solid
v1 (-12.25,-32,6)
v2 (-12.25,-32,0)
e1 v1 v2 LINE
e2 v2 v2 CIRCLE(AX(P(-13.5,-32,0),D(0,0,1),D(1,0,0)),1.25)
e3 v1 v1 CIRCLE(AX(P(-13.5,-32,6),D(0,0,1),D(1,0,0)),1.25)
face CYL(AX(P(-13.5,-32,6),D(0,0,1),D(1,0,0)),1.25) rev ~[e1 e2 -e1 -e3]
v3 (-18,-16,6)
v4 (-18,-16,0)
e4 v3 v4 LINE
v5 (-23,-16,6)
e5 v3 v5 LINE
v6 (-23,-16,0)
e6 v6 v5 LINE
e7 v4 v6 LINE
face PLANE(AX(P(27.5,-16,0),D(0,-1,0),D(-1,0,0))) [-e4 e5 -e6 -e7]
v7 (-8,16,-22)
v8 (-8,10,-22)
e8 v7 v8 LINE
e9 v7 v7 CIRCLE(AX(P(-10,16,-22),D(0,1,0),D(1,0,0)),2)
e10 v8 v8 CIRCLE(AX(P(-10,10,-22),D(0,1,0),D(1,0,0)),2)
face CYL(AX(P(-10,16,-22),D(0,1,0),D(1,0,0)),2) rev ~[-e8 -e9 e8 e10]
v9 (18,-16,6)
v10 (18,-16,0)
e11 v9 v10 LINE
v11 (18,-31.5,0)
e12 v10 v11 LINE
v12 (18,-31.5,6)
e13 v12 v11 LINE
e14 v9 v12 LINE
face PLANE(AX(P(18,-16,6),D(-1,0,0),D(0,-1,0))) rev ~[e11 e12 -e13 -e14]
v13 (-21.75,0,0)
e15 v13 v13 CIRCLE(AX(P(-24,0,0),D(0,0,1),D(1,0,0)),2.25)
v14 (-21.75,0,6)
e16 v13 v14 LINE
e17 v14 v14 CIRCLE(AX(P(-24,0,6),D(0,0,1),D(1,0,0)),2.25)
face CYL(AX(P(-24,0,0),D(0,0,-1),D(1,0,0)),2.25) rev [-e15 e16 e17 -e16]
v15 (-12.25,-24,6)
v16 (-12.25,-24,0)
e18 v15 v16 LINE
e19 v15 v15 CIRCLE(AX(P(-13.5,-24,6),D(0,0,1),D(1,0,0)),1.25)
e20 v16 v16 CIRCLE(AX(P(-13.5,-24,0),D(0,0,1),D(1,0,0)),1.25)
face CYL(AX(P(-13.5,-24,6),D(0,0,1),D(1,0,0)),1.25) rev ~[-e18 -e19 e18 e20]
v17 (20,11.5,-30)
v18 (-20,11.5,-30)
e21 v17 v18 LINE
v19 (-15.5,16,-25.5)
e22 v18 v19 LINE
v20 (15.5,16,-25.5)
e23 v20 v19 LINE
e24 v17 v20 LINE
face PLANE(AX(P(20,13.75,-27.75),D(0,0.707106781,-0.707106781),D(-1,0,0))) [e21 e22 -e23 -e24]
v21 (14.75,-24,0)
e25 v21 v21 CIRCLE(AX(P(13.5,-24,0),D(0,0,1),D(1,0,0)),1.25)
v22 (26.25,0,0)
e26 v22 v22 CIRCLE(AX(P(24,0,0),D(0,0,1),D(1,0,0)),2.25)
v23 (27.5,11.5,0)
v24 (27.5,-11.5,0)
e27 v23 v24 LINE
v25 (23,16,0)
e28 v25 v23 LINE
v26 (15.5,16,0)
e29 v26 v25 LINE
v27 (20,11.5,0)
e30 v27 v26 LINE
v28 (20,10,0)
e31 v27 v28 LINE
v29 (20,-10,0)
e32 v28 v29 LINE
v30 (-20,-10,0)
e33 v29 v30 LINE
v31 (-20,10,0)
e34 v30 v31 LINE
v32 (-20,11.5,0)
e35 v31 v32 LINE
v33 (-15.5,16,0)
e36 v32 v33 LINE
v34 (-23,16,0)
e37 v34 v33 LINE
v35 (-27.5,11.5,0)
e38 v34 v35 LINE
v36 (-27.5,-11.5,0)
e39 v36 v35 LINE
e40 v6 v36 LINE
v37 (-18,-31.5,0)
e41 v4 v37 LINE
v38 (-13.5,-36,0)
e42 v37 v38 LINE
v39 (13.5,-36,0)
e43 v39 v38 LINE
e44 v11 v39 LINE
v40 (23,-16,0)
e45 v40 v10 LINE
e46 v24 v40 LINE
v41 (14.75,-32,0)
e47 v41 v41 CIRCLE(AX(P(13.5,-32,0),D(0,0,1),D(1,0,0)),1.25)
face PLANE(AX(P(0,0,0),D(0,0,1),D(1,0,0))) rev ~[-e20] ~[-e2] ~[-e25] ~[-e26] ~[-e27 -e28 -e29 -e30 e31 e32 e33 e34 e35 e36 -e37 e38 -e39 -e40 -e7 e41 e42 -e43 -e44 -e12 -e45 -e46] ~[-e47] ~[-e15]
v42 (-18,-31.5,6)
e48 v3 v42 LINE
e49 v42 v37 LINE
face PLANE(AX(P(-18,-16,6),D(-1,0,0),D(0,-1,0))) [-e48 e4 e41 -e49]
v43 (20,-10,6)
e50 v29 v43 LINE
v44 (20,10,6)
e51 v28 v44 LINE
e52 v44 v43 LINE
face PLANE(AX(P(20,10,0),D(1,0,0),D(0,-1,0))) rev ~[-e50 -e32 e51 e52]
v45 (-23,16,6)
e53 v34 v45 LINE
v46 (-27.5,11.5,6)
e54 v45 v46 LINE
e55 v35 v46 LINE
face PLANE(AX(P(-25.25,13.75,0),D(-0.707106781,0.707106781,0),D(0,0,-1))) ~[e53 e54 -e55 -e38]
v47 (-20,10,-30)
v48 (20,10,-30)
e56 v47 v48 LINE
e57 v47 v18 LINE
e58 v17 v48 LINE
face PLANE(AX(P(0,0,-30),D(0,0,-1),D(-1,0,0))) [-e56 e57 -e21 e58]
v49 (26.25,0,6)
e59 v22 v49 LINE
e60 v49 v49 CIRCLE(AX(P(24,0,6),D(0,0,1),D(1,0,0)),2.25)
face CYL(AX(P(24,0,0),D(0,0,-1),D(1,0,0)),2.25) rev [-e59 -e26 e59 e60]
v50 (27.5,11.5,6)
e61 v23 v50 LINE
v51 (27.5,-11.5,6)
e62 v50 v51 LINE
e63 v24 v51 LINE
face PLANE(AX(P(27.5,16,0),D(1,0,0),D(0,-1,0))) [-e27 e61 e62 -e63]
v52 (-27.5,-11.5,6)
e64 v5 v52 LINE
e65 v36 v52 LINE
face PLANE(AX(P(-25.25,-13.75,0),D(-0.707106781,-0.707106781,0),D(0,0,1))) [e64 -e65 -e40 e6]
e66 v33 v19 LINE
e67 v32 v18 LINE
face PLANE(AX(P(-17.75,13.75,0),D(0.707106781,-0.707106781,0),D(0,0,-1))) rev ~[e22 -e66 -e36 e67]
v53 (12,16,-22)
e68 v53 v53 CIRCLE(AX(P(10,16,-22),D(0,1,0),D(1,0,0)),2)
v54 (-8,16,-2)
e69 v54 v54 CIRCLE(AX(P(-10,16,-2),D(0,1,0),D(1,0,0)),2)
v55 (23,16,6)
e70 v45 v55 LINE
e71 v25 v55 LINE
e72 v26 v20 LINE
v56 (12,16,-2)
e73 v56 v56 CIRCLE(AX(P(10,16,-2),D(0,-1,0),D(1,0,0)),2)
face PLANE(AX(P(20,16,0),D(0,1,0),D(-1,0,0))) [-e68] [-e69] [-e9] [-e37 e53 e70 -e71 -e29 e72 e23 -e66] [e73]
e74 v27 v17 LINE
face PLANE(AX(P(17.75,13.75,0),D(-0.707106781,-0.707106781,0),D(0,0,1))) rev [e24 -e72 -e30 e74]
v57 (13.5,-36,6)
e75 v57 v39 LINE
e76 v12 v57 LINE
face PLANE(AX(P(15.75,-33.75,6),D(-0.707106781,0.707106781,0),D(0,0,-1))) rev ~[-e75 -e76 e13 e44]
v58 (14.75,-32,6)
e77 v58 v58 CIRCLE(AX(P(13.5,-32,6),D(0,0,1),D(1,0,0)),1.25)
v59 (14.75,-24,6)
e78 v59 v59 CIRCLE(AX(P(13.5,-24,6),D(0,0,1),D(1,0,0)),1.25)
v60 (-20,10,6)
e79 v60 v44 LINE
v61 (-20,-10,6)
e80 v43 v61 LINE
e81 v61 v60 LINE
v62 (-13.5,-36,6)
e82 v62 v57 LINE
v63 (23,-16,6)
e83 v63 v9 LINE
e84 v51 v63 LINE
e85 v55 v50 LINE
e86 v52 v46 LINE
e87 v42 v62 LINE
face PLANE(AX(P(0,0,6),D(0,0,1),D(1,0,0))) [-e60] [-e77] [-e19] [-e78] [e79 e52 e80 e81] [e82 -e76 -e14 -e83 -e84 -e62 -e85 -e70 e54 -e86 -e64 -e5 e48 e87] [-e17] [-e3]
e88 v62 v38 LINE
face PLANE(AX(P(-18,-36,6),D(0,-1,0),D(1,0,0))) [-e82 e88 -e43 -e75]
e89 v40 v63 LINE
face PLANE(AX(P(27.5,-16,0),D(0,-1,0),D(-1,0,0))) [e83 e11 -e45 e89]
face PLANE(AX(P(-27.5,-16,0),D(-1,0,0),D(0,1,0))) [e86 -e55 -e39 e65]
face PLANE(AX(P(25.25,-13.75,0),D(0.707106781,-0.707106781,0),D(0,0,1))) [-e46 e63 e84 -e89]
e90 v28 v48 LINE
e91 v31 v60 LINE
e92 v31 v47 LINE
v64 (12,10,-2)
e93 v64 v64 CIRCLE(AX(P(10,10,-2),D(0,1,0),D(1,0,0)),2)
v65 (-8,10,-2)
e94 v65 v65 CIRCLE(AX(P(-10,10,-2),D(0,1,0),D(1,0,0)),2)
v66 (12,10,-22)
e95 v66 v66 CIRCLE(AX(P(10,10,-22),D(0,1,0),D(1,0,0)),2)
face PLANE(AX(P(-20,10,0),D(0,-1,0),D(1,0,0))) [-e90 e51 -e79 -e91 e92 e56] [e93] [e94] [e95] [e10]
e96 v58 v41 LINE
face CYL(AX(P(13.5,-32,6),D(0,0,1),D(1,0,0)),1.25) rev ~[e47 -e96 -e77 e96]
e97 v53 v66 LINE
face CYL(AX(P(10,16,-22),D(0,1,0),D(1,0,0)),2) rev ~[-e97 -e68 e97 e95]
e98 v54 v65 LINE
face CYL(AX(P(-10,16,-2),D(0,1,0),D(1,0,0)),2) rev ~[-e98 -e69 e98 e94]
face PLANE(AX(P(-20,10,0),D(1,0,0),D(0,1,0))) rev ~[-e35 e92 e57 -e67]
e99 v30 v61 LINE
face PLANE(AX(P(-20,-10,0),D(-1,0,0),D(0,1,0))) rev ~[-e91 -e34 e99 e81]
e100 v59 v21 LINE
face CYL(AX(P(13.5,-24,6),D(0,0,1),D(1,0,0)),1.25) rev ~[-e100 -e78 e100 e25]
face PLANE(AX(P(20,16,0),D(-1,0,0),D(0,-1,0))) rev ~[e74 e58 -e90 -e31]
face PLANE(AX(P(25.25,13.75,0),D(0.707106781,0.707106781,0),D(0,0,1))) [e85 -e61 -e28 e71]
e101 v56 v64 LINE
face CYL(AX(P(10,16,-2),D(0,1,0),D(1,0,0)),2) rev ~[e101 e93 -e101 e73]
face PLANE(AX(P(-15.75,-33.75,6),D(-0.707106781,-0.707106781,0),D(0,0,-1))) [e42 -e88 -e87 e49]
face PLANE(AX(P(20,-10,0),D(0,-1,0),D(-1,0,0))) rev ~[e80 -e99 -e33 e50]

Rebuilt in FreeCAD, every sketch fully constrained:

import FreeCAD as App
import Part
import Sketcher

V = App.Vector


def edges_at(feature, points):
    """Names of the edges that pass closest to the given points."""
    edges = feature.Shape.Edges
    near = lambda p: min(range(len(edges)), key=lambda i: edges[i].distToShape(Part.Vertex(*p))[0])
    return sorted({f"Edge{near(p) + 1}" for p in points})

doc = App.newDocument("Part")
body = doc.addObject("PartDesign::Body", "Body")

# Sketch on XY plane
sketch1 = body.newObject("Sketcher::SketchObject", "Sketch")
sketch1.AttachmentSupport = (doc.getObject("XY_Plane"), [""])
sketch1.MapMode = "FlatFace"
sketch1.addGeometry(Part.LineSegment(V(27.5, 16, 0), V(-27.5, 16, 0)), False)
sketch1.addGeometry(Part.LineSegment(V(-27.5, 16, 0), V(-27.5, -16, 0)), False)
sketch1.addGeometry(Part.LineSegment(V(-27.5, -16, 0), V(27.5, -16, 0)), False)
sketch1.addGeometry(Part.LineSegment(V(27.5, -16, 0), V(27.5, 16, 0)), False)
sketch1.addGeometry(Part.Circle(V(-24, 0, 0), V(0, 0, 1), 2.2), False)
sketch1.addGeometry(Part.LineSegment(V(-20, -10, 0), V(-20, 10, 0)), False)
sketch1.addGeometry(Part.LineSegment(V(-20, 10, 0), V(20, 10, 0)), False)
sketch1.addGeometry(Part.LineSegment(V(20, 10, 0), V(20, -10, 0)), False)
sketch1.addGeometry(Part.LineSegment(V(20, -10, 0), V(-20, -10, 0)), False)
sketch1.addGeometry(Part.Circle(V(24, 0, 0), V(0, 0, 1), 2.2), False)
sketch1.addConstraint(Sketcher.Constraint("Coincident", 0, 2, 1, 1))
sketch1.addConstraint(Sketcher.Constraint("Coincident", 1, 2, 2, 1))
sketch1.addConstraint(Sketcher.Constraint("Coincident", 2, 2, 3, 1))
sketch1.addConstraint(Sketcher.Constraint("Coincident", 3, 2, 0, 1))
sketch1.addConstraint(Sketcher.Constraint("Coincident", 5, 2, 6, 1))
sketch1.addConstraint(Sketcher.Constraint("Coincident", 6, 2, 7, 1))
sketch1.addConstraint(Sketcher.Constraint("Coincident", 7, 2, 8, 1))
sketch1.addConstraint(Sketcher.Constraint("Coincident", 8, 2, 5, 1))
sketch1.addConstraint(Sketcher.Constraint("Horizontal", 0))
sketch1.addConstraint(Sketcher.Constraint("Vertical", 1))
sketch1.addConstraint(Sketcher.Constraint("Horizontal", 2))
sketch1.addConstraint(Sketcher.Constraint("Vertical", 3))
sketch1.addConstraint(Sketcher.Constraint("Vertical", 5))
sketch1.addConstraint(Sketcher.Constraint("Horizontal", 6))
sketch1.addConstraint(Sketcher.Constraint("Vertical", 7))
sketch1.addConstraint(Sketcher.Constraint("Horizontal", 8))
sketch1.addConstraint(Sketcher.Constraint("Equal", 4, 9))
sketch1.addConstraint(Sketcher.Constraint("Symmetric", 4, 3, 9, 3, -1, 1))
sketch1.addConstraint(Sketcher.Constraint("Symmetric", 0, 2, 2, 2, -1, 1))
sketch1.addConstraint(Sketcher.Constraint("Symmetric", 5, 2, 7, 2, -1, 1))
sketch1.addConstraint(Sketcher.Constraint("PointOnObject", 4, 3, -1))
sketch1.addConstraint(Sketcher.Constraint("Diameter", 4, 4.5))
sketch1.addConstraint(Sketcher.Constraint("DistanceX", 0, 2, 0, 1, 55.0))
sketch1.addConstraint(Sketcher.Constraint("DistanceX", 6, 1, 6, 2, 40.0))
sketch1.addConstraint(Sketcher.Constraint("DistanceY", 1, 2, 1, 1, 32.0))
sketch1.addConstraint(Sketcher.Constraint("DistanceY", 5, 1, 5, 2, 20.0))
sketch1.addConstraint(Sketcher.Constraint("DistanceX", 4, 3, -1, 1, 24.0))
pad1 = body.newObject("PartDesign::Pad", "Pad")
pad1.Profile = sketch1
pad1.Length = 6
doc.recompute()

chamfer = body.newObject("PartDesign::Chamfer", "Chamfer")
chamfer.Base = (pad1, edges_at(pad1, [
    (27.5, 16, 3),
    (27.5, -16, 3),
    (-27.5, -16, 3),
    (-27.5, 16, 3),
]))
chamfer.Size = 4.5

# Sketch on XY plane
sketch2 = body.newObject("Sketcher::SketchObject", "Sketch001")
sketch2.AttachmentSupport = (doc.getObject("XY_Plane"), [""])
sketch2.MapMode = "FlatFace"
sketch2.AttachmentOffset = App.Placement(V(0, 0, 6), App.Rotation())
sketch2.addGeometry(Part.LineSegment(V(-18, -16, 0), V(-18, -36, 0)), False)
sketch2.addGeometry(Part.LineSegment(V(-18, -36, 0), V(18, -36, 0)), False)
sketch2.addGeometry(Part.LineSegment(V(18, -36, 0), V(18, -16, 0)), False)
sketch2.addGeometry(Part.LineSegment(V(18, -16, 0), V(-18, -16, 0)), False)
sketch2.addGeometry(Part.Circle(V(-13.5, -32, 0), V(0, 0, 1), 1.2), False)
sketch2.addGeometry(Part.Circle(V(-13.5, -24, 0), V(0, 0, 1), 1.2), False)
sketch2.addGeometry(Part.Circle(V(13.5, -24, 0), V(0, 0, 1), 1.2), False)
sketch2.addGeometry(Part.Circle(V(13.5, -32, 0), V(0, 0, 1), 1.2), False)
sketch2.addConstraint(Sketcher.Constraint("Coincident", 0, 2, 1, 1))
sketch2.addConstraint(Sketcher.Constraint("Coincident", 1, 2, 2, 1))
sketch2.addConstraint(Sketcher.Constraint("Coincident", 2, 2, 3, 1))
sketch2.addConstraint(Sketcher.Constraint("Coincident", 3, 2, 0, 1))
sketch2.addConstraint(Sketcher.Constraint("Vertical", 0))
sketch2.addConstraint(Sketcher.Constraint("Horizontal", 1))
sketch2.addConstraint(Sketcher.Constraint("Vertical", 2))
sketch2.addConstraint(Sketcher.Constraint("Horizontal", 3))
sketch2.addConstraint(Sketcher.Constraint("Equal", 4, 5))
sketch2.addConstraint(Sketcher.Constraint("Equal", 5, 6))
sketch2.addConstraint(Sketcher.Constraint("Equal", 6, 7))
sketch2.addConstraint(Sketcher.Constraint("Symmetric", 5, 3, 6, 3, -2))
sketch2.addConstraint(Sketcher.Constraint("Symmetric", 4, 3, 7, 3, -2))
sketch2.addConstraint(Sketcher.Constraint("Vertical", 4, 3, 5, 3))
sketch2.addConstraint(Sketcher.Constraint("Diameter", 4, 2.5))
sketch2.addConstraint(Sketcher.Constraint("DistanceY", 0, 2, 0, 1, 20.0))
sketch2.addConstraint(Sketcher.Constraint("DistanceX", 0, 2, -1, 1, 18.0))
sketch2.addConstraint(Sketcher.Constraint("DistanceX", -1, 1, 1, 2, 18.0))
sketch2.addConstraint(Sketcher.Constraint("DistanceY", 2, 2, -1, 1, 16.0))
sketch2.addConstraint(Sketcher.Constraint("DistanceY", 4, 3, 5, 3, 8.0))
sketch2.addConstraint(Sketcher.Constraint("DistanceY", 6, 3, 2, 2, 8.0))
sketch2.addConstraint(Sketcher.Constraint("DistanceX", 4, 3, -1, 1, 13.5))
pad2 = body.newObject("PartDesign::Pad", "Pad001")
pad2.Profile = sketch2
pad2.Length = 6
pad2.Reversed = True
doc.recompute()

chamfer2 = body.newObject("PartDesign::Chamfer", "Chamfer001")
chamfer2.Base = (pad2, edges_at(pad2, [(18, -36, 3), (-18, -36, 3)]))
chamfer2.Size = 4.5

# Sketch on XY plane
sketch3 = body.newObject("Sketcher::SketchObject", "Sketch002")
sketch3.AttachmentSupport = (doc.getObject("XY_Plane"), [""])
sketch3.MapMode = "FlatFace"
sketch3.addGeometry(Part.LineSegment(V(20, 10, 0), V(-20, 10, 0)), False)
sketch3.addGeometry(Part.LineSegment(V(-20, 10, 0), V(-20, 16, 0)), False)
sketch3.addGeometry(Part.LineSegment(V(-20, 16, 0), V(20, 16, 0)), False)
sketch3.addGeometry(Part.LineSegment(V(20, 16, 0), V(20, 10, 0)), False)
sketch3.addConstraint(Sketcher.Constraint("Coincident", 0, 2, 1, 1))
sketch3.addConstraint(Sketcher.Constraint("Coincident", 1, 2, 2, 1))
sketch3.addConstraint(Sketcher.Constraint("Coincident", 2, 2, 3, 1))
sketch3.addConstraint(Sketcher.Constraint("Coincident", 3, 2, 0, 1))
sketch3.addConstraint(Sketcher.Constraint("Horizontal", 0))
sketch3.addConstraint(Sketcher.Constraint("Vertical", 1))
sketch3.addConstraint(Sketcher.Constraint("Horizontal", 2))
sketch3.addConstraint(Sketcher.Constraint("Vertical", 3))
sketch3.addConstraint(Sketcher.Constraint("DistanceX", 0, 2, 0, 1, 40.0))
sketch3.addConstraint(Sketcher.Constraint("DistanceY", 1, 1, 1, 2, 6.0))
sketch3.addConstraint(Sketcher.Constraint("DistanceX", 0, 2, -1, 1, 20.0))
sketch3.addConstraint(Sketcher.Constraint("DistanceY", -1, 1, 0, 2, 10.0))
pad3 = body.newObject("PartDesign::Pad", "Pad002")
pad3.Profile = sketch3
pad3.Length = 30
pad3.Reversed = True
doc.recompute()

chamfer3 = body.newObject("PartDesign::Chamfer", "Chamfer002")
chamfer3.Base = (pad3, edges_at(pad3, [(-20, 16, -15), (20, 16, -15), (0, 16, -30)]))
chamfer3.Size = 4.5

# Sketch on XZ plane
sketch4 = body.newObject("Sketcher::SketchObject", "Sketch003")
sketch4.AttachmentSupport = (doc.getObject("XZ_Plane"), [""])
sketch4.MapMode = "FlatFace"
sketch4.AttachmentOffset = App.Placement(V(0, 0, -16), App.Rotation())
sketch4.addGeometry(Part.Circle(V(10, -2, 0), V(0, 0, 1), 2), False)
sketch4.addGeometry(Part.Circle(V(-10, -2, 0), V(0, 0, 1), 2), False)
sketch4.addGeometry(Part.Circle(V(10, -22, 0), V(0, 0, 1), 2), False)
sketch4.addGeometry(Part.Circle(V(-10, -22, 0), V(0, 0, 1), 2), False)
sketch4.addConstraint(Sketcher.Constraint("Equal", 0, 1))
sketch4.addConstraint(Sketcher.Constraint("Equal", 1, 2))
sketch4.addConstraint(Sketcher.Constraint("Equal", 2, 3))
sketch4.addConstraint(Sketcher.Constraint("Symmetric", 0, 3, 1, 3, -2))
sketch4.addConstraint(Sketcher.Constraint("Symmetric", 2, 3, 3, 3, -2))
sketch4.addConstraint(Sketcher.Constraint("Vertical", 0, 3, 2, 3))
sketch4.addConstraint(Sketcher.Constraint("Diameter", 0, 4.0))
sketch4.addConstraint(Sketcher.Constraint("DistanceX", -1, 1, 0, 3, 10.0))
sketch4.addConstraint(Sketcher.Constraint("DistanceY", 2, 3, 0, 3, 20.0))
sketch4.addConstraint(Sketcher.Constraint("DistanceY", 0, 3, -1, 1, 2.0))
pocket1 = body.newObject("PartDesign::Pocket", "Pocket")
pocket1.Profile = sketch4
pocket1.Length = 10
pocket1.Reversed = True

doc.recompute()
